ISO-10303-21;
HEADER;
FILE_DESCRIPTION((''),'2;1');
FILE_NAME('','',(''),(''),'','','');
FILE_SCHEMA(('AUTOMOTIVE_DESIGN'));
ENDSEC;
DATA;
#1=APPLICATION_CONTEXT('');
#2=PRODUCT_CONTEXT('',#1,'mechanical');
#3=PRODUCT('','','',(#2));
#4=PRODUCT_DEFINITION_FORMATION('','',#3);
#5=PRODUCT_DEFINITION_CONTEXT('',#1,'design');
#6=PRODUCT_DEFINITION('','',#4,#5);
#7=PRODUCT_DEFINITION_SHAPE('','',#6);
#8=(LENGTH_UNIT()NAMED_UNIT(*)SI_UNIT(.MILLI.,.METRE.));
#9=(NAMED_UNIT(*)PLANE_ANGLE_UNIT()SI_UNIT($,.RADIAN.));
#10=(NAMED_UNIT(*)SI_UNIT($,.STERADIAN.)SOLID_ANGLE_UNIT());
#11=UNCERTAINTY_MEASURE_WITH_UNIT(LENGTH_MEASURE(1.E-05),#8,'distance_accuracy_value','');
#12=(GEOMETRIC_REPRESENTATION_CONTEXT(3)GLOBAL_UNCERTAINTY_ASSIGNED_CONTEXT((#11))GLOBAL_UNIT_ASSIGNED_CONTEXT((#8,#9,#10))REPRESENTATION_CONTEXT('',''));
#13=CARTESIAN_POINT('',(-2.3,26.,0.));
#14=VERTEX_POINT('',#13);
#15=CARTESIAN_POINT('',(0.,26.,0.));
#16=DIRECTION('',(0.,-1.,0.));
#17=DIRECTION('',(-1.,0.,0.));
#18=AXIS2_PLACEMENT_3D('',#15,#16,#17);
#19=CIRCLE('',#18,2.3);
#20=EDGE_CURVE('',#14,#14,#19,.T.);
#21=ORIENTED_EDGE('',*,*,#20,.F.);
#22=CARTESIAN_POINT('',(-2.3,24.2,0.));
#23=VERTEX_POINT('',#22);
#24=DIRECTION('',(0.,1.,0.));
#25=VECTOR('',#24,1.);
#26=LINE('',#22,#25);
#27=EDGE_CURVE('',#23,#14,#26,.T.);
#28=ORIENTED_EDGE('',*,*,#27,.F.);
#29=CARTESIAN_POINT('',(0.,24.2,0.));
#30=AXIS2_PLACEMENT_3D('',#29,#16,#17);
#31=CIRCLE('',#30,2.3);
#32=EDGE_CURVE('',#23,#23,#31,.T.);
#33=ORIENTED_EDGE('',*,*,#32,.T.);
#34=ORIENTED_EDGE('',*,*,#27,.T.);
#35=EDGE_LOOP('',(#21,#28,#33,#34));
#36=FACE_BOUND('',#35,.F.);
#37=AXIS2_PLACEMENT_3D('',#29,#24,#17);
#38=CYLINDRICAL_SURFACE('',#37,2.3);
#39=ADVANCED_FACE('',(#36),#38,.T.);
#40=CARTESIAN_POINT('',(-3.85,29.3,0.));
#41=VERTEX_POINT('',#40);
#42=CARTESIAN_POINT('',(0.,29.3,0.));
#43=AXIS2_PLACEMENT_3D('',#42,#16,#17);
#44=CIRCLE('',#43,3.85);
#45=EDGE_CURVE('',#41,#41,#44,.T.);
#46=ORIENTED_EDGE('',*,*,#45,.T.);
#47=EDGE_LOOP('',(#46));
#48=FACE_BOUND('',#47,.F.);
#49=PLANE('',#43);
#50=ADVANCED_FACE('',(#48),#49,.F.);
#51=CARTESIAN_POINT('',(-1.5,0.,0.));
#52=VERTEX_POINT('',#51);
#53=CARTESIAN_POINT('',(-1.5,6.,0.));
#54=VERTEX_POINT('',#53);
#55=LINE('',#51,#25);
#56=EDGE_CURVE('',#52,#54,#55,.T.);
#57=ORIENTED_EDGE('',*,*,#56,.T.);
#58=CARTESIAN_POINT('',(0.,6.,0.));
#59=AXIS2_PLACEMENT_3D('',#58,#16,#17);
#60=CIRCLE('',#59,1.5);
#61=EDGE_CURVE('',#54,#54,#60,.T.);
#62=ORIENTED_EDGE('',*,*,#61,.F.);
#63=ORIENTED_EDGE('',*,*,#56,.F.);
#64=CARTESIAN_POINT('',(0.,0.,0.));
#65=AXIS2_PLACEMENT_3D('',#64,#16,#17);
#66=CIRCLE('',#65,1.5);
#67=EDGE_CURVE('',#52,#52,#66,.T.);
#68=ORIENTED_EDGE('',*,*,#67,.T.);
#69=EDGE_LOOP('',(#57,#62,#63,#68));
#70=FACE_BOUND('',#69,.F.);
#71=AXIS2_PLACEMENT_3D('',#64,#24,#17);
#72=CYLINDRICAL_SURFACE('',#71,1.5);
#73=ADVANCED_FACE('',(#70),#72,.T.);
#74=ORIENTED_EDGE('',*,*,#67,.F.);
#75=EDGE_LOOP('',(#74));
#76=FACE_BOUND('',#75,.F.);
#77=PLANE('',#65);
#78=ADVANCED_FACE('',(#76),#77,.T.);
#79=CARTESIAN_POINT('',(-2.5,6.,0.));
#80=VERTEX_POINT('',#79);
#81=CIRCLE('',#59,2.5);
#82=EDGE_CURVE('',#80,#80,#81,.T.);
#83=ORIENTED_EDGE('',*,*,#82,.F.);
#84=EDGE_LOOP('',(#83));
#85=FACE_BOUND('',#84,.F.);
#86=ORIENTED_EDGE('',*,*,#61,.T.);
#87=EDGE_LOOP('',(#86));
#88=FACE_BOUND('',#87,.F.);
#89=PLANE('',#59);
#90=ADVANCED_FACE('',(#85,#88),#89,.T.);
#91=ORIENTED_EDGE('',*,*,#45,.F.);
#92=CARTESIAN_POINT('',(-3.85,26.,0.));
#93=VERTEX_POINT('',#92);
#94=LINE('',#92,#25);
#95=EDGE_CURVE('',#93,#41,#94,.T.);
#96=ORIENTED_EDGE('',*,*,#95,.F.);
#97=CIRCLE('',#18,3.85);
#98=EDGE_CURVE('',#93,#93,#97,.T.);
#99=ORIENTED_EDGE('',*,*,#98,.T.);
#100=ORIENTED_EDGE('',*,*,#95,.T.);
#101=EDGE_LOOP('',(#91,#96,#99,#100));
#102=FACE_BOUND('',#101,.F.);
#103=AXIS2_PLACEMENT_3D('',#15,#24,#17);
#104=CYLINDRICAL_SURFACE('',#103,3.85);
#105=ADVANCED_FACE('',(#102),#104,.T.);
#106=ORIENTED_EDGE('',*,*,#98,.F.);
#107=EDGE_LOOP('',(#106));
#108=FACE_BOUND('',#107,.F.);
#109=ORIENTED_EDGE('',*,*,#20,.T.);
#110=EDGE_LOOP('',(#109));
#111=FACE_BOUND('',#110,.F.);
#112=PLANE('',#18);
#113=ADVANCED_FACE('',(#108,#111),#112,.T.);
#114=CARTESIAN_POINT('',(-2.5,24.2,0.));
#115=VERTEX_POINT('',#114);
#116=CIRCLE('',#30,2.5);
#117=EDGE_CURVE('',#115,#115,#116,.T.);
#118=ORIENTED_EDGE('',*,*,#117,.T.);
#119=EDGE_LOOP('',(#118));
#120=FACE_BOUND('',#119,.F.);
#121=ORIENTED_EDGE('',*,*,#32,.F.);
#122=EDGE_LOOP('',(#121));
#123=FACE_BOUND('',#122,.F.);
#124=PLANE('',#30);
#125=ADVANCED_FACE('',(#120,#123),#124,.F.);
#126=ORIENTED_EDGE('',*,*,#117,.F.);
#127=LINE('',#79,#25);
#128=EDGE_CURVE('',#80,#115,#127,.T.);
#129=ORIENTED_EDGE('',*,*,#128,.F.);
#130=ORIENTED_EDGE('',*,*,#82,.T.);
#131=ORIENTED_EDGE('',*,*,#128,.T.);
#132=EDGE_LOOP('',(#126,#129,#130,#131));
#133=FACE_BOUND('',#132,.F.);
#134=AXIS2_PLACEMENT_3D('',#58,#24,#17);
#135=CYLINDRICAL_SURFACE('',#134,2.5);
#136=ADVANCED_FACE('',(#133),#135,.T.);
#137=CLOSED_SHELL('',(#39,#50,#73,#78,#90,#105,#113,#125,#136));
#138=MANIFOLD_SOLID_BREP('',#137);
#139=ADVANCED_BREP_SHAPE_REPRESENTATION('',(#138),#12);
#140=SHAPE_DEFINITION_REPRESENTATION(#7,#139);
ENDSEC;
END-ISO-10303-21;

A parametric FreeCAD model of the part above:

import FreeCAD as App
import Part
import Sketcher

V = App.Vector

doc = App.newDocument("Part")
body = doc.addObject("PartDesign::Body", "Body")

# Sketch on XY plane
sketch1 = body.newObject("Sketcher::SketchObject", "Sketch")
sketch1.AttachmentSupport = (doc.getObject("XY_Plane"), [""])
sketch1.MapMode = "FlatFace"
sketch1.addGeometry([
    Part.LineSegment(V(0, 0, 0), V(1.5, 0, 0)),  # 0
    Part.LineSegment(V(1.5, 0, 0), V(1.5, 6, 0)),  # 1
    Part.LineSegment(V(1.5, 6, 0), V(2.5, 6, 0)),  # 2
    Part.LineSegment(V(2.5, 6, 0), V(2.5, 24.2, 0)),  # 3
    Part.LineSegment(V(2.5, 24.2, 0), V(2.3, 24.2, 0)),  # 4
    Part.LineSegment(V(2.3, 24.2, 0), V(2.3, 26, 0)),  # 5
    Part.LineSegment(V(2.3, 26, 0), V(3.85, 26, 0)),  # 6
    Part.LineSegment(V(3.85, 26, 0), V(3.85, 29.3, 0)),  # 7
    Part.LineSegment(V(3.85, 29.3, 0), V(0, 29.3, 0)),  # 8
    Part.LineSegment(V(0, 29.3, 0), V(0, 0, 0)),  # 9
], False)
sketch1.addConstraint([
    Sketcher.Constraint("Coincident", 0, 2, 1, 1),
    Sketcher.Constraint("Coincident", 1, 2, 2, 1),
    Sketcher.Constraint("Coincident", 2, 2, 3, 1),
    Sketcher.Constraint("Coincident", 3, 2, 4, 1),
    Sketcher.Constraint("Coincident", 4, 2, 5, 1),
    Sketcher.Constraint("Coincident", 5, 2, 6, 1),
    Sketcher.Constraint("Coincident", 6, 2, 7, 1),
    Sketcher.Constraint("Coincident", 7, 2, 8, 1),
    Sketcher.Constraint("Coincident", 8, 2, 9, 1),
    Sketcher.Constraint("Coincident", 9, 2, 0, 1),
    Sketcher.Constraint("Horizontal", 0),
    Sketcher.Constraint("Vertical", 1),
    Sketcher.Constraint("Horizontal", 2),
    Sketcher.Constraint("Vertical", 3),
    Sketcher.Constraint("Horizontal", 4),
    Sketcher.Constraint("Vertical", 5),
    Sketcher.Constraint("Horizontal", 6),
    Sketcher.Constraint("Vertical", 7),
    Sketcher.Constraint("Horizontal", 8),
    Sketcher.Constraint("Vertical", 9),
    Sketcher.Constraint("Coincident", 9, 2, -1, 1),
    Sketcher.Constraint("DistanceX", 2, 1, 2, 2, 1.0),
    Sketcher.Constraint("DistanceY", 1, 1, 1, 2, 6.0),
    Sketcher.Constraint("DistanceX", 0, 1, 0, 2, 1.5),
    Sketcher.Constraint("DistanceX", 4, 2, 4, 1, 0.2),
    Sketcher.Constraint("DistanceY", 3, 1, 3, 2, 18.2),
    Sketcher.Constraint("DistanceY", 5, 1, 5, 2, 1.8),
    Sketcher.Constraint("DistanceY", 7, 1, 7, 2, 3.3),
    Sketcher.Constraint("DistanceX", 6, 1, 6, 2, 1.55),
])
revolution = body.newObject("PartDesign::Revolution", "Revolution")
revolution.Profile = sketch1
revolution.ReferenceAxis = (sketch1, ["V_Axis"])
revolution.Angle = 360

doc.recompute()
